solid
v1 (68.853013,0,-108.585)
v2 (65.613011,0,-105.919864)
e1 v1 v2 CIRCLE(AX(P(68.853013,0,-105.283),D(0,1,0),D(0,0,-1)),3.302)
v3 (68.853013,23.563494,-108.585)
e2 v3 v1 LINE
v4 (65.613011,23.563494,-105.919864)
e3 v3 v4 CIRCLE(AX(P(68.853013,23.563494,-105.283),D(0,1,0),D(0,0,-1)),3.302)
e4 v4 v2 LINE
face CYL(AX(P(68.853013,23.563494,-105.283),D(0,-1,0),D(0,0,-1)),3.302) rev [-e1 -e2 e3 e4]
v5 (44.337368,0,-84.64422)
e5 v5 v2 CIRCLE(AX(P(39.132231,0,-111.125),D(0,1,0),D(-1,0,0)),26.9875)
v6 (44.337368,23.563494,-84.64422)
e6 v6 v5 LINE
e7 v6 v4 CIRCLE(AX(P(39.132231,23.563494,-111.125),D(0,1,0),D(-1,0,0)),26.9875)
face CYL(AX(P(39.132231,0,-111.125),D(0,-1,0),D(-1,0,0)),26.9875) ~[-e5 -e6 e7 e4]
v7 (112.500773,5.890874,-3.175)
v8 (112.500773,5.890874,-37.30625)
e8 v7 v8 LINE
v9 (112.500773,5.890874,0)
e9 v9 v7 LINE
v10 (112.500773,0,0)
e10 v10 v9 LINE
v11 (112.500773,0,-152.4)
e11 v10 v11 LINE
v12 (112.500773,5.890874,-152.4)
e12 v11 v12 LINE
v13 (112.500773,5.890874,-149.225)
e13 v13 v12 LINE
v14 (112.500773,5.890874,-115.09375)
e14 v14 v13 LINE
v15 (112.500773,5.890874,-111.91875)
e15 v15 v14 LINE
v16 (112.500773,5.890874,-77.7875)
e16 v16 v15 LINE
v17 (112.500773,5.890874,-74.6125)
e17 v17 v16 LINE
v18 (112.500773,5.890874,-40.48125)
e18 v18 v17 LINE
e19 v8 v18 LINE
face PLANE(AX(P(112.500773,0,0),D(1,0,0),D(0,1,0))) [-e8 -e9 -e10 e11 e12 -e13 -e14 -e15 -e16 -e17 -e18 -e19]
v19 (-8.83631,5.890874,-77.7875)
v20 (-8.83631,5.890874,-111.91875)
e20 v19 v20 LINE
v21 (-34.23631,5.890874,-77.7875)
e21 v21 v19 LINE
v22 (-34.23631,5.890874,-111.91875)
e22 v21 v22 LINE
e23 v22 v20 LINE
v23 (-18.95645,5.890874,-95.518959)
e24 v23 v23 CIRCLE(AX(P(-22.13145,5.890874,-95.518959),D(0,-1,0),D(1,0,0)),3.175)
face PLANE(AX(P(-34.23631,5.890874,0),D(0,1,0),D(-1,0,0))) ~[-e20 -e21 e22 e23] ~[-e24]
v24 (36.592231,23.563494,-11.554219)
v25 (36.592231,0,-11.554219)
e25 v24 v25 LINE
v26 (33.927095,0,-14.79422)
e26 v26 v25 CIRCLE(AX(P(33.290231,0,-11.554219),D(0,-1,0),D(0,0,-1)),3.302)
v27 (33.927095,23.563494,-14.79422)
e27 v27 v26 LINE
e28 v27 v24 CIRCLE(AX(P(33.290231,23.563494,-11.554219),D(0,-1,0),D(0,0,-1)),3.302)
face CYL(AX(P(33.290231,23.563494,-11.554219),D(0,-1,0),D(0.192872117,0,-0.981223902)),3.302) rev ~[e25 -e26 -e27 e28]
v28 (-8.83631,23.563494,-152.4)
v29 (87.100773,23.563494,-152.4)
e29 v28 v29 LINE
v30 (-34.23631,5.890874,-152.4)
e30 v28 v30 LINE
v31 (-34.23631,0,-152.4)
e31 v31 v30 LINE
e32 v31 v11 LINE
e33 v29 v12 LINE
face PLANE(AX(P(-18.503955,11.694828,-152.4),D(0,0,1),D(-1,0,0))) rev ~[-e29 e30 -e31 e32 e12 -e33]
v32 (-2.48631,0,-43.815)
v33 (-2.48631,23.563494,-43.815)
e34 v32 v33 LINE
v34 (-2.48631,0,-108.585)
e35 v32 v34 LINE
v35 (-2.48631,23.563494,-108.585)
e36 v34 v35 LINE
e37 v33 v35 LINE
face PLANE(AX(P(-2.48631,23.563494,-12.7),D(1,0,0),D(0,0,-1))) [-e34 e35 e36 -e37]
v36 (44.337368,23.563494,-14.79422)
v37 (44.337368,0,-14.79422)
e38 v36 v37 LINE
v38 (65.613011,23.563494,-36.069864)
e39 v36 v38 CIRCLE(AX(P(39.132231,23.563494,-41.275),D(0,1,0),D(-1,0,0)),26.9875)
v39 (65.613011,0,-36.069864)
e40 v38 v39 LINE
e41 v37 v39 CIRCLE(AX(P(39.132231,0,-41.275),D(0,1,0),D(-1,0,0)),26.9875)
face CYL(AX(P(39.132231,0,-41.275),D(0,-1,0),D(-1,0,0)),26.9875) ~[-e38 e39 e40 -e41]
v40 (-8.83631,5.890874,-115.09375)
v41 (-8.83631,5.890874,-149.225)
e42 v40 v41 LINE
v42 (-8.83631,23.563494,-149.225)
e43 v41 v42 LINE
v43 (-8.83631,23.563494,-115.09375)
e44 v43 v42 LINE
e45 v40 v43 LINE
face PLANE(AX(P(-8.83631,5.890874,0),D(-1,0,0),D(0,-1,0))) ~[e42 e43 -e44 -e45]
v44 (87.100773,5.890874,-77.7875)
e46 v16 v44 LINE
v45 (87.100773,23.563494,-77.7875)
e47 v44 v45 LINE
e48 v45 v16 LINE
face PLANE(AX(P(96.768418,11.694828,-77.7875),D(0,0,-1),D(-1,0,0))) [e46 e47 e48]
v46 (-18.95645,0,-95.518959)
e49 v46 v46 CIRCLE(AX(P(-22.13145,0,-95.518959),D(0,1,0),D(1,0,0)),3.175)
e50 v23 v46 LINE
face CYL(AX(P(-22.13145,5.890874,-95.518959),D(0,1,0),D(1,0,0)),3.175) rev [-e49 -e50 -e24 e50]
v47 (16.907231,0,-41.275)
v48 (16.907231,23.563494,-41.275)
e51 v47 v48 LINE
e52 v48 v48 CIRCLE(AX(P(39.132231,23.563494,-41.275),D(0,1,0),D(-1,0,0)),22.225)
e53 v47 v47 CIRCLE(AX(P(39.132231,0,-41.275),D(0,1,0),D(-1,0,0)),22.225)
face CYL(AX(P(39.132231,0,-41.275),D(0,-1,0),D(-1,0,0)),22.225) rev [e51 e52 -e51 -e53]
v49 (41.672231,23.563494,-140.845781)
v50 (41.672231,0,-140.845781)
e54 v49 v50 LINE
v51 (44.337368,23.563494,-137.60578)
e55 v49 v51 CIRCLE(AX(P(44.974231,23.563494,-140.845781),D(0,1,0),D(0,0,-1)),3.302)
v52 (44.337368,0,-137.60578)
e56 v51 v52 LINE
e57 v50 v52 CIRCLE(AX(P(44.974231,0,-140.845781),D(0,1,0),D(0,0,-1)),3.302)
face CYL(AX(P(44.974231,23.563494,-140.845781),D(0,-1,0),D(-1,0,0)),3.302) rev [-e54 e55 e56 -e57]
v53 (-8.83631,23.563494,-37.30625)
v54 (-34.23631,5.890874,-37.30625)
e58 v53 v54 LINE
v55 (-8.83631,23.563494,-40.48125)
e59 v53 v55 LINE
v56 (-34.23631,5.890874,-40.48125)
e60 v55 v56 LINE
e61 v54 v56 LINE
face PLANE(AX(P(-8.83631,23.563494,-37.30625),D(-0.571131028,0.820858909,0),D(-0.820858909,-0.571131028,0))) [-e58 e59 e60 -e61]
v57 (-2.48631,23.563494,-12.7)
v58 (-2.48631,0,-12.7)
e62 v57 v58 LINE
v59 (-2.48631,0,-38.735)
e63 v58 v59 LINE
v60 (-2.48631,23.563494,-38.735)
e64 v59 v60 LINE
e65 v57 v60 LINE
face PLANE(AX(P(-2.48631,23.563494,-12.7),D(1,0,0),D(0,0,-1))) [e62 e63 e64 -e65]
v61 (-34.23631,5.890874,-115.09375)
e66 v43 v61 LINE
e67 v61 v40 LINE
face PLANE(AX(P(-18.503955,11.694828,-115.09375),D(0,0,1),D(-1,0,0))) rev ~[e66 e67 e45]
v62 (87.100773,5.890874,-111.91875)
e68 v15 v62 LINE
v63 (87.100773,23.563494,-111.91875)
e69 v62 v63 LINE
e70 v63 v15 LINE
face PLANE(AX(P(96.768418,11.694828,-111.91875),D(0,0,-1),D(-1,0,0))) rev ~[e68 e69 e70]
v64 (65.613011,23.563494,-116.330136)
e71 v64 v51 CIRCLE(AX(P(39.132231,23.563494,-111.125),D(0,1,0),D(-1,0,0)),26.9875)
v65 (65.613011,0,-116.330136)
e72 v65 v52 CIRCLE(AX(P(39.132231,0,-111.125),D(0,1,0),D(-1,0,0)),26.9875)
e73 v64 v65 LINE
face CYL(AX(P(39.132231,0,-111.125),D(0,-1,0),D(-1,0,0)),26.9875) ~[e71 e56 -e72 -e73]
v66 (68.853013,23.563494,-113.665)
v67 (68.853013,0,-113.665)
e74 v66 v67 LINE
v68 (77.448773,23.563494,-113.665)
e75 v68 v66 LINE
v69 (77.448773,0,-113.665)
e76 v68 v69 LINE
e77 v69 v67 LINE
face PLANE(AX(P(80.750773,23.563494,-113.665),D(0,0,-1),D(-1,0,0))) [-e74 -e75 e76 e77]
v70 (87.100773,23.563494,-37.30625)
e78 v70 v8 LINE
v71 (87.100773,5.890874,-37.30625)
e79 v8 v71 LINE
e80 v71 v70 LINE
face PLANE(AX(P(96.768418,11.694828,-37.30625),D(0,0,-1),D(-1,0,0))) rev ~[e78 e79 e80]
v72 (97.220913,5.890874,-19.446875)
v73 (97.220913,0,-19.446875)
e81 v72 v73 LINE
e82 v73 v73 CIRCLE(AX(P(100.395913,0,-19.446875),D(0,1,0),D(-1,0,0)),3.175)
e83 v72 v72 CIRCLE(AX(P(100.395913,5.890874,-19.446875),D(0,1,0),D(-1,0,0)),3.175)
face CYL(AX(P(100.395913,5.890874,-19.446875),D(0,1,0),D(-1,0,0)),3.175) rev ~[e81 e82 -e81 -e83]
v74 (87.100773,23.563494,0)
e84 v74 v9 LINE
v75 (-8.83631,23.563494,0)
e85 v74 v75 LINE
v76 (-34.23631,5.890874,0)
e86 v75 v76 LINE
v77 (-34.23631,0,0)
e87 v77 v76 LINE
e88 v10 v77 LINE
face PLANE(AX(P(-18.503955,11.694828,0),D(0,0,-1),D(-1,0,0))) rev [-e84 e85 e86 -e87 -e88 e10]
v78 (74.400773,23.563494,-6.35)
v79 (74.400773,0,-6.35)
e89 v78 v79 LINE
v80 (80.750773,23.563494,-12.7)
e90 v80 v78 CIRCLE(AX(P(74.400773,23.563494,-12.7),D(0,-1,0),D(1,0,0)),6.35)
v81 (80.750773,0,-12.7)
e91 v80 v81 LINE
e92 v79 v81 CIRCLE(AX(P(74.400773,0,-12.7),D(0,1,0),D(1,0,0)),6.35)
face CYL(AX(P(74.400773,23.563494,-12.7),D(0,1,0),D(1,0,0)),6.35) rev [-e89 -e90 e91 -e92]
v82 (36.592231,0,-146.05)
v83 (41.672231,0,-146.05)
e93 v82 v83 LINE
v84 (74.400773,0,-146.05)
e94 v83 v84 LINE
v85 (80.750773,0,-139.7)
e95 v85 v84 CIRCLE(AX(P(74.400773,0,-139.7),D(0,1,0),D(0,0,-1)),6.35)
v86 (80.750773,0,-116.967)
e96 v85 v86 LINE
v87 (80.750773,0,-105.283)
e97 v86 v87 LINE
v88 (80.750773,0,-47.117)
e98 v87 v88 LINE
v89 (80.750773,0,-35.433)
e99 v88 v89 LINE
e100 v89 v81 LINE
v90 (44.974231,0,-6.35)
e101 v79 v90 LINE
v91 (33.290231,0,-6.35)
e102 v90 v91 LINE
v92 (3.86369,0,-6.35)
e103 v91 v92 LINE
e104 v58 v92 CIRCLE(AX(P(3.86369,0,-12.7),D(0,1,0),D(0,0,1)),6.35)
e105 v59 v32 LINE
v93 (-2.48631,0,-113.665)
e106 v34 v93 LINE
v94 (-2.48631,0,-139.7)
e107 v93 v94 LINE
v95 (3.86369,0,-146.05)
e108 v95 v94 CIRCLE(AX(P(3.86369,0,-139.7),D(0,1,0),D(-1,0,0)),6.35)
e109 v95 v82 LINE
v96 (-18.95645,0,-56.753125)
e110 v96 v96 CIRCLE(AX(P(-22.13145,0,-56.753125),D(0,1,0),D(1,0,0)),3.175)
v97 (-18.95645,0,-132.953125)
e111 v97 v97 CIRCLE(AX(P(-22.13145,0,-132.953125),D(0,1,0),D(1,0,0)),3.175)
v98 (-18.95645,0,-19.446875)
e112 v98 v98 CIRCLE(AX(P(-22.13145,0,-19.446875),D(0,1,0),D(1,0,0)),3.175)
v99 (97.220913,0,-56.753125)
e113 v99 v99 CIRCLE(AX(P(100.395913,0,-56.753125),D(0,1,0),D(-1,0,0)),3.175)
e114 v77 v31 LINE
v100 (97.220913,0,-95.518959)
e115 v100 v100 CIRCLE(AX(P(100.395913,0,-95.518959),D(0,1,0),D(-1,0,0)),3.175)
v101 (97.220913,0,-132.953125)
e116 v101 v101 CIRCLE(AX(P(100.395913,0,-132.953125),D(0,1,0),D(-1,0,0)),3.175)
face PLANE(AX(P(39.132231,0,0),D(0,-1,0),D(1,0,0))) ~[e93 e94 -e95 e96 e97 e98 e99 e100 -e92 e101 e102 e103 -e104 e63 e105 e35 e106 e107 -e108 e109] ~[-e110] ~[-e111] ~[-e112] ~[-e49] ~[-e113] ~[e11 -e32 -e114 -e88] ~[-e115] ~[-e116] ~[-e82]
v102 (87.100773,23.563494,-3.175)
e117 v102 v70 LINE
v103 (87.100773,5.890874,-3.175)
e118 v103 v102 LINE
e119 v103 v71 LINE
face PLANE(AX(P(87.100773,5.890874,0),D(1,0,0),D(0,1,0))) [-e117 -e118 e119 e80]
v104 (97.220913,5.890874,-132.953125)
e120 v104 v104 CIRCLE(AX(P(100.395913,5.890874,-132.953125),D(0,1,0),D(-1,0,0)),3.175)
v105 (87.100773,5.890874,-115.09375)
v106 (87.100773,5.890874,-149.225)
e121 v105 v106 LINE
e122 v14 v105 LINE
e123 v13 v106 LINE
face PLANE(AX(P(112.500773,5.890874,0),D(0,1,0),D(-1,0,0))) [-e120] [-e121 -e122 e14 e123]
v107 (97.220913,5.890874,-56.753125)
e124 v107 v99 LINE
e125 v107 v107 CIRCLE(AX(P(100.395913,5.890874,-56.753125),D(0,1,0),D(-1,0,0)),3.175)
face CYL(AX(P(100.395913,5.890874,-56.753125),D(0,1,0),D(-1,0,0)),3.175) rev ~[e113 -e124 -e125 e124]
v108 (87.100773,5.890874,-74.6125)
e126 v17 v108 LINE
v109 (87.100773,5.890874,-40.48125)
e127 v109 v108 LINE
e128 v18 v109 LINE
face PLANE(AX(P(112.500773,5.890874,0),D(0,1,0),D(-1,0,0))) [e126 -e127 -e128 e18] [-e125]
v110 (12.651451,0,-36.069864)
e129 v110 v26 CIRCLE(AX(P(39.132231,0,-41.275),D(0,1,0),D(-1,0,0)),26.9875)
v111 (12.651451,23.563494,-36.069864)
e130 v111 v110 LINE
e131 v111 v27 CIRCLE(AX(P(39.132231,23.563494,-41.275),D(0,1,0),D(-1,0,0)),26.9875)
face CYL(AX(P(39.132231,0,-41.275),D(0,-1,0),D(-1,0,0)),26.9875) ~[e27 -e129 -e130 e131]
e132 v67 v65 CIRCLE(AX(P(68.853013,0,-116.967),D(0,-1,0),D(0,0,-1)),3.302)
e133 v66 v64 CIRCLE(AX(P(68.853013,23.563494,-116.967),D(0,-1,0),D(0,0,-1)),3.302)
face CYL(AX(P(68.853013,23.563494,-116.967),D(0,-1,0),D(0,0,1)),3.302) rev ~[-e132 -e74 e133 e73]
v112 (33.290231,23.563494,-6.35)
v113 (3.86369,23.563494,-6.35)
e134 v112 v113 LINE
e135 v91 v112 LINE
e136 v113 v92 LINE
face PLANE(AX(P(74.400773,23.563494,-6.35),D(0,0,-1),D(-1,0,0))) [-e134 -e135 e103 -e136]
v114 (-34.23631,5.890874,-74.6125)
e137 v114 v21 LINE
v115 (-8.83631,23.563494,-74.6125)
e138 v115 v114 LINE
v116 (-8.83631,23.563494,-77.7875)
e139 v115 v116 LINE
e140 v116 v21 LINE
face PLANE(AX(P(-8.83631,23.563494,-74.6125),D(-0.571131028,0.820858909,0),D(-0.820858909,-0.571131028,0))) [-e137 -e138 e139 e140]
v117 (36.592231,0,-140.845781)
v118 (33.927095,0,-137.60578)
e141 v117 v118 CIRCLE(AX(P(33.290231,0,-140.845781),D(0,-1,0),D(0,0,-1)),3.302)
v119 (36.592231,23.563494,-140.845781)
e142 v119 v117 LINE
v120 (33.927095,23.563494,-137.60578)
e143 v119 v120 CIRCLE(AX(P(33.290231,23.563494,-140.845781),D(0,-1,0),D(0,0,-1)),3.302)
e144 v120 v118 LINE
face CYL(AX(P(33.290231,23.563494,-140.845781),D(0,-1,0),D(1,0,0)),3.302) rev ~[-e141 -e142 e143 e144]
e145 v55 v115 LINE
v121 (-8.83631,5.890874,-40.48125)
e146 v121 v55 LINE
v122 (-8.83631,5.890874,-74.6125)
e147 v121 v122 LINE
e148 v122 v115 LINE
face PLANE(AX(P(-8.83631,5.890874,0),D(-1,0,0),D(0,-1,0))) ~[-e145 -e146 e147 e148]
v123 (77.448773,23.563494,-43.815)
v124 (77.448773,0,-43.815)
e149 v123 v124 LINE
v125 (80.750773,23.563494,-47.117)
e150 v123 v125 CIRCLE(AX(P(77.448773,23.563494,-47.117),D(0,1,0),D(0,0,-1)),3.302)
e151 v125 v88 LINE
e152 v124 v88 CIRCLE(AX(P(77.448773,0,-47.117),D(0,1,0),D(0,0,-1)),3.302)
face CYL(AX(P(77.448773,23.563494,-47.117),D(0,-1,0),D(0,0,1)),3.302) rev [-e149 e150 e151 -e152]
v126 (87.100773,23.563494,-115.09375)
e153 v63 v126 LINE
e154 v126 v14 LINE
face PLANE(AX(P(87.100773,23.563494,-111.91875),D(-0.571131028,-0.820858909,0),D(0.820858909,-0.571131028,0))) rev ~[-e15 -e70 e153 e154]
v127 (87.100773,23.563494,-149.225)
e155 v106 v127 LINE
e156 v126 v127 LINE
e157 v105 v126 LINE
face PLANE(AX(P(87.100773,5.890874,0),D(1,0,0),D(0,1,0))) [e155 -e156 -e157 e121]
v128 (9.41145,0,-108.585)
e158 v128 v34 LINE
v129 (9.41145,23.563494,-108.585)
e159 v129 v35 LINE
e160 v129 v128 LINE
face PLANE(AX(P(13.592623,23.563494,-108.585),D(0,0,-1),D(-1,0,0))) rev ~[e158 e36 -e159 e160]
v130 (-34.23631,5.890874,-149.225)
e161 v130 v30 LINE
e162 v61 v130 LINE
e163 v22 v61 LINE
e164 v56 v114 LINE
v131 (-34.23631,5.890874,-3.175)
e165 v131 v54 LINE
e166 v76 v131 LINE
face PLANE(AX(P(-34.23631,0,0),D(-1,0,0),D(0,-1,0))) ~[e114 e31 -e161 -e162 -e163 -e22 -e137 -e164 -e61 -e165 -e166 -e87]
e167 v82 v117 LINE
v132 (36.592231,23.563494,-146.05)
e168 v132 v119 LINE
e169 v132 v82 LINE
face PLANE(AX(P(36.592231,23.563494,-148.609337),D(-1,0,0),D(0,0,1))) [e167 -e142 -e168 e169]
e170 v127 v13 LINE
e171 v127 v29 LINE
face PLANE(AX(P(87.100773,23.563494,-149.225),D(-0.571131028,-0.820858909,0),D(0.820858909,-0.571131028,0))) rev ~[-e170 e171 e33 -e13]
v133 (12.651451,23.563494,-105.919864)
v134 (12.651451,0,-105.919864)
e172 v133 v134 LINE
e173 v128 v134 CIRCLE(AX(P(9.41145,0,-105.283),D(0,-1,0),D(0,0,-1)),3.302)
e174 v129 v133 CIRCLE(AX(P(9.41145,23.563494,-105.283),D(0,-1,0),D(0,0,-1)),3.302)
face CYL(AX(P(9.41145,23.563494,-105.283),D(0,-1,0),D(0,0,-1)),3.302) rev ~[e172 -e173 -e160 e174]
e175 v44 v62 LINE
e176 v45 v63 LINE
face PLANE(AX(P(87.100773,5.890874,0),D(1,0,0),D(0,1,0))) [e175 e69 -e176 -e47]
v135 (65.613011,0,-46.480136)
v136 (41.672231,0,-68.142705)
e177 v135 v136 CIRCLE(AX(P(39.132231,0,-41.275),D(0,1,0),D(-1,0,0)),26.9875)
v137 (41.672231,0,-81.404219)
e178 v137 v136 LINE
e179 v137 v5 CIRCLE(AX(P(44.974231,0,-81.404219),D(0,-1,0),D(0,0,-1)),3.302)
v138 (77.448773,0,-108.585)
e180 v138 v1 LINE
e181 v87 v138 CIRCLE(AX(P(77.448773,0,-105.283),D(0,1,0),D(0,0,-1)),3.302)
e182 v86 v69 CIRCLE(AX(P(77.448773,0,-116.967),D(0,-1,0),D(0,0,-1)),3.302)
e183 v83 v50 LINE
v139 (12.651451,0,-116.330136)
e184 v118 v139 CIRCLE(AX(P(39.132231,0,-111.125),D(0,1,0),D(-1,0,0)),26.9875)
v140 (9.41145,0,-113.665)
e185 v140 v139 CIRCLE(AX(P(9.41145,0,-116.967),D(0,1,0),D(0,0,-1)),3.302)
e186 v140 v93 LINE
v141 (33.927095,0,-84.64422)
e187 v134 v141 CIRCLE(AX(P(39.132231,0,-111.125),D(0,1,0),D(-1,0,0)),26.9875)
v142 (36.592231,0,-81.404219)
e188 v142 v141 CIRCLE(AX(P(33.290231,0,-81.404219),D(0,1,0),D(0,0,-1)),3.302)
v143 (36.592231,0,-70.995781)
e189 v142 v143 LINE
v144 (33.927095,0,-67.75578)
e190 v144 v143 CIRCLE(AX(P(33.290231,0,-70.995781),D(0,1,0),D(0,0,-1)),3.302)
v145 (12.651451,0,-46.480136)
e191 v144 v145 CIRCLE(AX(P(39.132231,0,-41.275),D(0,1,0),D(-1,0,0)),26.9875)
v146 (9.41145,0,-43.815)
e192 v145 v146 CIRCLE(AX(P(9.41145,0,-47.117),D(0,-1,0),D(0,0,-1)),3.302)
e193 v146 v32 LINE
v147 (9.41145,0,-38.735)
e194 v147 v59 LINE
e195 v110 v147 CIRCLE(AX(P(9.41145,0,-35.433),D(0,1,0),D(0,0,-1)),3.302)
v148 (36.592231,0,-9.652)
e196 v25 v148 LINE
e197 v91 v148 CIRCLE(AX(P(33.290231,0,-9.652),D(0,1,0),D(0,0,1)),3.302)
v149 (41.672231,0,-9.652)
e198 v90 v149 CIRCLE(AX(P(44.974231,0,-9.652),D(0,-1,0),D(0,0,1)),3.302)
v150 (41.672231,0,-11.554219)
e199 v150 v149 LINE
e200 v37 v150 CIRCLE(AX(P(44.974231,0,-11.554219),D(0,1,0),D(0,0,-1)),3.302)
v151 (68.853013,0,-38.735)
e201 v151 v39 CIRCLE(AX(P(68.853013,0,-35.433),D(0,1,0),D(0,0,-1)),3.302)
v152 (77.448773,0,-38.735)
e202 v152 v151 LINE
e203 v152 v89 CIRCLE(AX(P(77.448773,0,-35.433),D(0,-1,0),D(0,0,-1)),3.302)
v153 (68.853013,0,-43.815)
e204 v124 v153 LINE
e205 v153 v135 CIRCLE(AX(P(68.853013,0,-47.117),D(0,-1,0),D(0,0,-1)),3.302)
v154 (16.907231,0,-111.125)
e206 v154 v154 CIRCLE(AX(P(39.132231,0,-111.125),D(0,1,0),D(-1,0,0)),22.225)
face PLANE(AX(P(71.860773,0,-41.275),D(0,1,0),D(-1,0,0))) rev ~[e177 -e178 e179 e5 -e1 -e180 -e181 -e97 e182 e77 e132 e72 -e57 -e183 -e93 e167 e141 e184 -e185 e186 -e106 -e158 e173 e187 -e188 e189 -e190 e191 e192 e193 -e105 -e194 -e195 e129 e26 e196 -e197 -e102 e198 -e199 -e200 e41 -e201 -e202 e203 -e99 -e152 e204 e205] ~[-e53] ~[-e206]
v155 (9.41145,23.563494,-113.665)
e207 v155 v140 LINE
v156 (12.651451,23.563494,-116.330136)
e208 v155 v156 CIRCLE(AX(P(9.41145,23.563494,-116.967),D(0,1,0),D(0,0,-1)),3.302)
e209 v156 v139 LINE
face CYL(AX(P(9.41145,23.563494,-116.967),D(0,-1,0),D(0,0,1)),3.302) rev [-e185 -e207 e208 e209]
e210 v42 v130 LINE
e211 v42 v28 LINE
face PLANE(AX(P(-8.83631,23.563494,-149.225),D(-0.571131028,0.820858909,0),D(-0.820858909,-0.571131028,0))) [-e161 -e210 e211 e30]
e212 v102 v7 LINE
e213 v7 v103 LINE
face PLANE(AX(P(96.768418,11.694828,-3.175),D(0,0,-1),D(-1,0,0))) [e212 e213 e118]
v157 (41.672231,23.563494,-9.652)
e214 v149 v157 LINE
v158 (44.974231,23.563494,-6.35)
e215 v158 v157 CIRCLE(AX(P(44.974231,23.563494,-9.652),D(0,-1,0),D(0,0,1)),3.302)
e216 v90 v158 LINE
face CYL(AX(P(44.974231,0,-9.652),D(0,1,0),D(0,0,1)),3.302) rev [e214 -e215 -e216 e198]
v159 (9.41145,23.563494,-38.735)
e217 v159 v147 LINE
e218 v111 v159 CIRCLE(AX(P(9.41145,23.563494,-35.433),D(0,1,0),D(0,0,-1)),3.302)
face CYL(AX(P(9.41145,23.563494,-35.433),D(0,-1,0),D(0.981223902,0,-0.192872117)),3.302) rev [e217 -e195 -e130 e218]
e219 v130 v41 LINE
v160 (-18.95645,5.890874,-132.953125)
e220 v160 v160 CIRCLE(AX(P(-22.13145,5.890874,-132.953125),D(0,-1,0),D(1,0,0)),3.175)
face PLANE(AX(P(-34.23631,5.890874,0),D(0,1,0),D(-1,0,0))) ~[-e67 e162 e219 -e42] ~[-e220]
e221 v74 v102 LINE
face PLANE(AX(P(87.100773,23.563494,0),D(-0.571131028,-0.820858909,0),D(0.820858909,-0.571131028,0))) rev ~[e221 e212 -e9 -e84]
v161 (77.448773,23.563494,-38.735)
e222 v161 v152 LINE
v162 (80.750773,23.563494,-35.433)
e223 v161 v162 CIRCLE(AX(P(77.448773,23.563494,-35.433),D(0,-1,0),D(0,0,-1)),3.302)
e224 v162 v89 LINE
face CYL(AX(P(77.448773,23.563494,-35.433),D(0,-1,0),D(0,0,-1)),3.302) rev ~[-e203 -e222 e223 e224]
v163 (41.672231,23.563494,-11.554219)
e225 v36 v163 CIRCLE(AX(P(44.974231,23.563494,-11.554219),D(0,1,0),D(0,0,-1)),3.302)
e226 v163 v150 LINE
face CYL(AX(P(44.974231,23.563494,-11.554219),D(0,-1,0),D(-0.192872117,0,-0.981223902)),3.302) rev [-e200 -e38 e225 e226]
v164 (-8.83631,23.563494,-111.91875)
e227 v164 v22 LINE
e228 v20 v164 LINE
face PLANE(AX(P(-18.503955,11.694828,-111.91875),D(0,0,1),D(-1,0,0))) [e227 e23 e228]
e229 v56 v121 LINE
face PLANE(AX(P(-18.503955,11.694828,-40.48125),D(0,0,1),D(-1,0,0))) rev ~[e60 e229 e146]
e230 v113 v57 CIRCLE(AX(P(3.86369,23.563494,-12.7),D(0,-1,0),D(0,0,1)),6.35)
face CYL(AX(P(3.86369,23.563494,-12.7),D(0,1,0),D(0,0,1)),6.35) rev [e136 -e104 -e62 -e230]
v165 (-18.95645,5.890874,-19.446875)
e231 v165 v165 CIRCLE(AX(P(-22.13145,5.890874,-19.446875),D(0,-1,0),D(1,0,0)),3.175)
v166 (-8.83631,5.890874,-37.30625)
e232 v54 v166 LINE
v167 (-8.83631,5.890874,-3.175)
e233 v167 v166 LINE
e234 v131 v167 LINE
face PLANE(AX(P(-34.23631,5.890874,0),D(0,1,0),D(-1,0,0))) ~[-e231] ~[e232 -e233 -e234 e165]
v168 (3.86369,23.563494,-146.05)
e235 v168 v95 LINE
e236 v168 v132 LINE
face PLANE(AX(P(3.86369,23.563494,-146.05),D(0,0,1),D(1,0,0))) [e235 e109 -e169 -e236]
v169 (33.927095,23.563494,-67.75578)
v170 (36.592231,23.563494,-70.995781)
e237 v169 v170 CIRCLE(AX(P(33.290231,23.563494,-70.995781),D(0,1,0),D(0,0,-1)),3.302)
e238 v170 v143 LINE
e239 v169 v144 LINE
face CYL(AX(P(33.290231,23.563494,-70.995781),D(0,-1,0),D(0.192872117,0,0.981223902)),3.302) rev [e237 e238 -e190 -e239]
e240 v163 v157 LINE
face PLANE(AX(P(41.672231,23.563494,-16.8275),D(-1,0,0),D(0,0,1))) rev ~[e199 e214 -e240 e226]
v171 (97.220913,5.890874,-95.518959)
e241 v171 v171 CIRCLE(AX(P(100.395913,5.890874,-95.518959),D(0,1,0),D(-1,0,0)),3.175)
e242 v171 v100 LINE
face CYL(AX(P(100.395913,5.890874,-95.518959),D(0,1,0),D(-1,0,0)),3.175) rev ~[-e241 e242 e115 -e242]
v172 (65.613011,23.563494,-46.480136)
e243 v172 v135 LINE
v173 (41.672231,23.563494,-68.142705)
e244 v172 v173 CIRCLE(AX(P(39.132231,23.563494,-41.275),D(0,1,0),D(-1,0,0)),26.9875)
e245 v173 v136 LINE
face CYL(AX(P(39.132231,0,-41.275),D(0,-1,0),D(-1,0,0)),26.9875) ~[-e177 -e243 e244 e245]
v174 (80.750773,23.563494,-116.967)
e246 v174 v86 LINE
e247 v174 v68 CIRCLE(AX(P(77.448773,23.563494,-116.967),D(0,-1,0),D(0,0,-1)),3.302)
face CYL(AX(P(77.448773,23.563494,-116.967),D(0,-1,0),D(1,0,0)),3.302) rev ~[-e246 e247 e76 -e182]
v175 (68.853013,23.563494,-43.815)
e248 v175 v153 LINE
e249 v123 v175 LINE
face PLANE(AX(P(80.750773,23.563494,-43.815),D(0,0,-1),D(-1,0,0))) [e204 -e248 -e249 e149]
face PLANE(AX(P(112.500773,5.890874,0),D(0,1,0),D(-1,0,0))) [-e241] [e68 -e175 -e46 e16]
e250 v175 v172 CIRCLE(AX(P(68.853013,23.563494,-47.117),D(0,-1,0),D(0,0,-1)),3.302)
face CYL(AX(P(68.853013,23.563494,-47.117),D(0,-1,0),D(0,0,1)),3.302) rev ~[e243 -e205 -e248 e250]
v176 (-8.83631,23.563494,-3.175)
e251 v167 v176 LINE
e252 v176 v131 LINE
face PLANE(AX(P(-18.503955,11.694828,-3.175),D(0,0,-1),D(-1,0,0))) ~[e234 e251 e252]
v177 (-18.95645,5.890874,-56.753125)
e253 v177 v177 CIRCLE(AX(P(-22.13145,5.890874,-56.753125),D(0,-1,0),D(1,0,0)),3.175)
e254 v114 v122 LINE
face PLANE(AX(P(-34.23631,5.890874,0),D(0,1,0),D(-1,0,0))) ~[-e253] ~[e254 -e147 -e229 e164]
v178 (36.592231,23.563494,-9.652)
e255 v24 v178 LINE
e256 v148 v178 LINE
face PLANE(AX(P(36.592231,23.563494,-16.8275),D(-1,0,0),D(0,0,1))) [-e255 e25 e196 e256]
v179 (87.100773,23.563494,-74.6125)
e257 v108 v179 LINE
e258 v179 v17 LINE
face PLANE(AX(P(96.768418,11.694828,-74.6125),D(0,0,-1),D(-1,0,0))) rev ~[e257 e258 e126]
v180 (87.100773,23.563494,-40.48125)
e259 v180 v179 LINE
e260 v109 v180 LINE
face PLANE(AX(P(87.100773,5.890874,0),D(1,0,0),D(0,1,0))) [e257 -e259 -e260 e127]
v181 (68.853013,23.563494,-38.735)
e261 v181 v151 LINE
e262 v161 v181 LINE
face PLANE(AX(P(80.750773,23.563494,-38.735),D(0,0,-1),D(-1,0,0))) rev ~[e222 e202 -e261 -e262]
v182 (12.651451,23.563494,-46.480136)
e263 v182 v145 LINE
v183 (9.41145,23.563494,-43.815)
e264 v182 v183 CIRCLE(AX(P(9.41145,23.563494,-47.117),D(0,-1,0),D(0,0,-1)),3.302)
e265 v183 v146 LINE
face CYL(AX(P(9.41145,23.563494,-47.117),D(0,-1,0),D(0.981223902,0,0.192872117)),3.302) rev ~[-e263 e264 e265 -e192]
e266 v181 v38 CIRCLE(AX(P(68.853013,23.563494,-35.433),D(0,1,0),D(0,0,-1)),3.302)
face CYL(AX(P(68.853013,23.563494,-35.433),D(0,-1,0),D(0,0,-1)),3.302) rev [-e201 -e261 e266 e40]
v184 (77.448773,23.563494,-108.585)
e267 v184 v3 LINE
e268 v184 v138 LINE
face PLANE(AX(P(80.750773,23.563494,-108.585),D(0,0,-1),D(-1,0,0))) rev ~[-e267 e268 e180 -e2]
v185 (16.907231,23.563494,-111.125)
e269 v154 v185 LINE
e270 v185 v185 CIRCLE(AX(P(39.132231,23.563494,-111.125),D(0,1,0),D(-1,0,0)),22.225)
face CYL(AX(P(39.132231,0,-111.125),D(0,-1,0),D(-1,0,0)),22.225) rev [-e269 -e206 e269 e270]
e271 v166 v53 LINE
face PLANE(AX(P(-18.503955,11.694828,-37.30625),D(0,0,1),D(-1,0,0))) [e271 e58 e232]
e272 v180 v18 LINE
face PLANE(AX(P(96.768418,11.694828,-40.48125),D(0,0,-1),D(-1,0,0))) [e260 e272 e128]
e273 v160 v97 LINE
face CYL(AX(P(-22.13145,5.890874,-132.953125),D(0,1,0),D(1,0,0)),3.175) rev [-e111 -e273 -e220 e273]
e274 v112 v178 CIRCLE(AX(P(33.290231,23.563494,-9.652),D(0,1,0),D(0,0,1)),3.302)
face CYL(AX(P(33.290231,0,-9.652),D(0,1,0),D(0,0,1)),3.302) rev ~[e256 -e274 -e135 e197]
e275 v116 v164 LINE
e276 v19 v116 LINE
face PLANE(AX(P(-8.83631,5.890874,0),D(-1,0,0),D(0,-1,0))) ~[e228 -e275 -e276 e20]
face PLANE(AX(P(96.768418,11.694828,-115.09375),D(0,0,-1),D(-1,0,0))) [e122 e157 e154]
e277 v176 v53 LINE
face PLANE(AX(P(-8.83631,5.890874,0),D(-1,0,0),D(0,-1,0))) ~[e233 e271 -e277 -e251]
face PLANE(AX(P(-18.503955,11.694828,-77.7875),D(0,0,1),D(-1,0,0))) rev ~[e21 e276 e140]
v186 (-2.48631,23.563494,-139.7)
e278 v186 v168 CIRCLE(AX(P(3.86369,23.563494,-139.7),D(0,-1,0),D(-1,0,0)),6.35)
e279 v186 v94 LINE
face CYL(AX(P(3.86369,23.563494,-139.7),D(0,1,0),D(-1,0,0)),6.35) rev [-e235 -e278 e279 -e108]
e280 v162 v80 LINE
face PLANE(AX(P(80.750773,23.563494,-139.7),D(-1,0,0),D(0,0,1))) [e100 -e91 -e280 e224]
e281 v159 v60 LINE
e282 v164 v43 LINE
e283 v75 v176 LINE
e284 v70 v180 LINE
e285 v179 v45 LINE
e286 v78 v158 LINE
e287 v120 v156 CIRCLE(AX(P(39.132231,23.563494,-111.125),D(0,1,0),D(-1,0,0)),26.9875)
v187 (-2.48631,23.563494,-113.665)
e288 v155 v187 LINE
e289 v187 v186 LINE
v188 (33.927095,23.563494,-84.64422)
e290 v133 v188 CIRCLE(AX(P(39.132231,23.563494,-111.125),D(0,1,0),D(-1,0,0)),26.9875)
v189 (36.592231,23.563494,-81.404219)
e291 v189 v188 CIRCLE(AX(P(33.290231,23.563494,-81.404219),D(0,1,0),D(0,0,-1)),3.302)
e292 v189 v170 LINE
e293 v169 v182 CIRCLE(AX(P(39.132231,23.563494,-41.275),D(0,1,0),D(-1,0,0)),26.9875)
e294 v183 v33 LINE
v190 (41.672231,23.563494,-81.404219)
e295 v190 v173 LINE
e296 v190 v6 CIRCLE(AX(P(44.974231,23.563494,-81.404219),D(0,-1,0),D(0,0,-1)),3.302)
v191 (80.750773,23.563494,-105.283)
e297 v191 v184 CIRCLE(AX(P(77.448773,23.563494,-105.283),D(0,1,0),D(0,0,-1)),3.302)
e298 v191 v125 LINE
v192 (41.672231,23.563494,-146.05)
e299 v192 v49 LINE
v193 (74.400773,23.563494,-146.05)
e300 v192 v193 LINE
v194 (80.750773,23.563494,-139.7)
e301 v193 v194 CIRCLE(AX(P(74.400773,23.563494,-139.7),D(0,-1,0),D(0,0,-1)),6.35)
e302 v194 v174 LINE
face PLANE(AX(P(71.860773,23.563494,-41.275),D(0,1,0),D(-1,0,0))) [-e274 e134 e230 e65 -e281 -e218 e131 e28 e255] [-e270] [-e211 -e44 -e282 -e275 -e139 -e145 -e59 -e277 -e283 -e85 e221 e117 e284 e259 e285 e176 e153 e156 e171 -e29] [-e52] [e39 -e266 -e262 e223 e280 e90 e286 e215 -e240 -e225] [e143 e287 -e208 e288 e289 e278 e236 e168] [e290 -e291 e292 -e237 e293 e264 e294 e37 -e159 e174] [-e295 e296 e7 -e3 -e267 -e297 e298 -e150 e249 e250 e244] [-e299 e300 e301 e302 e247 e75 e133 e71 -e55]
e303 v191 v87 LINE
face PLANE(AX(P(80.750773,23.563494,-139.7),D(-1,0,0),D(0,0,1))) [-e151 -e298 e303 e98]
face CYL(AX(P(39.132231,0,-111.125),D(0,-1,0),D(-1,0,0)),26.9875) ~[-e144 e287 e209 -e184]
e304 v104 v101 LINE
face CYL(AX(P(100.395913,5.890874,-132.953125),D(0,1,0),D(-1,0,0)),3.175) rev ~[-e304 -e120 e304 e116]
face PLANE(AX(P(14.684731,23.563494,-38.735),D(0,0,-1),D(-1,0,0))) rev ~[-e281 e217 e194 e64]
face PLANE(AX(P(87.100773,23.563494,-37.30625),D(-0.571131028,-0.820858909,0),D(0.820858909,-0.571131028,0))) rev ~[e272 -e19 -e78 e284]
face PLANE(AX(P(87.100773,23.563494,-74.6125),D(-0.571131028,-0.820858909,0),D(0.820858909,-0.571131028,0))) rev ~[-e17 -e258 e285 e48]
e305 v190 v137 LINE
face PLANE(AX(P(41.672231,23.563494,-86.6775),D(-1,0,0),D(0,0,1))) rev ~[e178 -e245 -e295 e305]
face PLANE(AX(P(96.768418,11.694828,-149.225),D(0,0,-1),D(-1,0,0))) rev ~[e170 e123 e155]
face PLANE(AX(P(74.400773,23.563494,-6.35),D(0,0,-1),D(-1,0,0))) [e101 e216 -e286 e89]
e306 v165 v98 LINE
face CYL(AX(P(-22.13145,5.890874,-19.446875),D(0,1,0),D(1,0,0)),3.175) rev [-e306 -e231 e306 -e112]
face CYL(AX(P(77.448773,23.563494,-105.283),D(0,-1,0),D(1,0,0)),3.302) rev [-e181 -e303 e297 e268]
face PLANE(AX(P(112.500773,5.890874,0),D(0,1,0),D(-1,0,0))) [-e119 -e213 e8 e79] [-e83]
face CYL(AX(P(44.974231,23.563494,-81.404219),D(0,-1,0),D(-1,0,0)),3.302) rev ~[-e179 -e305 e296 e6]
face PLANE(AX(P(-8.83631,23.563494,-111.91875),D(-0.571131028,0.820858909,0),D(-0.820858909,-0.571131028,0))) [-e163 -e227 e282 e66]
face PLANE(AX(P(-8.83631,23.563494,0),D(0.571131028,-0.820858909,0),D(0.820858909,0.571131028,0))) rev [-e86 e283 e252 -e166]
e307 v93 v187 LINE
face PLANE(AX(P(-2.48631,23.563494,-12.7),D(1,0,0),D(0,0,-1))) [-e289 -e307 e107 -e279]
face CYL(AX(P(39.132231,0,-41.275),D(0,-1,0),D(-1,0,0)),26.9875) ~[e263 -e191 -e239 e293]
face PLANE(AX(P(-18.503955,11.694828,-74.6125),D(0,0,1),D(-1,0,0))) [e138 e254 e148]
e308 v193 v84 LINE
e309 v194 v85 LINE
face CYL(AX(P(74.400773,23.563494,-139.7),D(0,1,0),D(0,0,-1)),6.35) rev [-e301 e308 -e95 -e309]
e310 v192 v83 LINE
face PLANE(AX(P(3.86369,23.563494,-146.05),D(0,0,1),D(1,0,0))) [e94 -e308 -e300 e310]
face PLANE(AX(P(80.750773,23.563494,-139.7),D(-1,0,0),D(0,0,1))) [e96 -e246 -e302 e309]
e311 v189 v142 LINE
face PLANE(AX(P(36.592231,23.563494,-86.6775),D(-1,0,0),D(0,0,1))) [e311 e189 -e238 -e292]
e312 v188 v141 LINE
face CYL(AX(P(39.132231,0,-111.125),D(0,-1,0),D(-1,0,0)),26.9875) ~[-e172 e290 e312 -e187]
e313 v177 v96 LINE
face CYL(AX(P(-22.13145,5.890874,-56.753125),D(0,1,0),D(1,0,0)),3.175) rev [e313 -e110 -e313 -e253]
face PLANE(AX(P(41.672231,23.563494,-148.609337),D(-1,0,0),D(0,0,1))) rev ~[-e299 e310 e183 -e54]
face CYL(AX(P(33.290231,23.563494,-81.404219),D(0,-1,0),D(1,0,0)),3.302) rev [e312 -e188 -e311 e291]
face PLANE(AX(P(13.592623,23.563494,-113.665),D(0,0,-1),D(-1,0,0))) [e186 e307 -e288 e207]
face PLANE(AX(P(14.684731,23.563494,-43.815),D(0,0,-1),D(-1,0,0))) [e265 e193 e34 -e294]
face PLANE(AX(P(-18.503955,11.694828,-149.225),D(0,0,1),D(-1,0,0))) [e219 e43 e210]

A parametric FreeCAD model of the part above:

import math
import FreeCAD as App
import Part
import Sketcher
from FreeCAD import Vector
Q = App.Units.Quantity


def edges_at(feature, points):
    """Names of the edges that pass closest to the given points."""
    edges = feature.Shape.Edges
    near = lambda p: min(range(len(edges)), key=lambda i: edges[i].distToShape(Part.Vertex(*p))[0])
    return sorted({f"Edge{near(p) + 1}" for p in points})


def add_polygon(sketch, points):
    """Adds a closed chain of lines whose ends are joined by coincident constraints."""
    first, n = sketch.GeometryCount, len(points)
    for a, b in zip(points, points[1:] + points[:1]):
        sketch.addGeometry(Part.LineSegment(App.Vector(*a, 0), App.Vector(*b, 0)), False)
    for i in range(n):
        sketch.addConstraint(Sketcher.Constraint("Coincident", first + i, 2, first + (i + 1) % n, 1))

doc = App.newDocument("Part")
body = doc.addObject("PartDesign::Body", "Body")

sketch1 = doc.addObject("Sketcher::SketchObject", "Sketch")
body.addObject(sketch1)
sketch1.AttachmentSupport = (doc.XY_Plane, [""])
sketch1.MapMode = "FlatFace"
add_polygon(sketch1, [(39, 0), (113, 0), (113, 6), (87, 6), (87, 24), (39, 24)])
sketch1.addConstraint(Sketcher.Constraint("Horizontal", 0))
sketch1.addConstraint(Sketcher.Constraint("Vertical", 1))
sketch1.addConstraint(Sketcher.Constraint("Horizontal", 2))
sketch1.addConstraint(Sketcher.Constraint("Vertical", 3))
sketch1.addConstraint(Sketcher.Constraint("Horizontal", 4))
sketch1.addConstraint(Sketcher.Constraint("Vertical", 5))
sketch1.addConstraint(Sketcher.Constraint("PointOnObject", 0, 2, -1))
sketch1.addConstraint(Sketcher.Constraint("DistanceX", 2, 2, 2, 1, Q("1 in")))
sketch1.addConstraint(Sketcher.Constraint("DistanceX", 0, 1, 0, 2, Q("73.368542 mm")))
sketch1.addConstraint(Sketcher.Constraint("DistanceY", 3, 1, 3, 2, Q("17.672621 mm")))
sketch1.addConstraint(Sketcher.Constraint("DistanceY", 1, 1, 1, 2, Q("5.890874 mm")))
sketch1.addConstraint(Sketcher.Constraint("DistanceX", -1, 1, 4, 2, Q("39.132231 mm")))
pad1 = doc.addObject("PartDesign::Pad", "Pad")
body.addObject(pad1)
pad1.Profile = sketch1
pad1.Length = Q("6 in")
pad1.Reversed = True
doc.recompute()

datumplane = doc.addObject("PartDesign::Plane", "DatumPlane")
body.addObject(datumplane)
datumplane.AttachmentSupport = (doc.YZ_Plane, [""])
datumplane.MapMode = "FlatFace"
datumplane.AttachmentOffset = App.Placement(Vector(0, 0, 39.132231), App.Rotation())
mirrored = doc.addObject("PartDesign::Mirrored", "Mirrored")
body.addObject(mirrored)
mirrored.Originals = [pad1]
mirrored.MirrorPlane = (datumplane, [""])
body.Tip = mirrored

sketch2 = doc.addObject("Sketcher::SketchObject", "Sketch001")
body.addObject(sketch2)
sketch2.AttachmentSupport = (doc.XY_Plane, [""])
sketch2.MapMode = "FlatFace"
add_polygon(sketch2, [(113, 6), (87, 24), (87, 6)])
sketch2.addConstraint(Sketcher.Constraint("Vertical", 1))
sketch2.addConstraint(Sketcher.Constraint("Horizontal", 2))
sketch2.addConstraint(Sketcher.Constraint("DistanceX", 2, 1, 2, 2, Q("1 in")))
sketch2.addConstraint(Sketcher.Constraint("Distance", 0, Q("30.943198 mm")))
sketch2.addConstraint(Sketcher.Constraint("DistanceX", -1, 1, 0, 2, Q("87.100773 mm")))
sketch2.addConstraint(Sketcher.Constraint("DistanceY", -1, 1, 0, 2, Q("23.563494 mm")))
pad2 = doc.addObject("PartDesign::Pad", "Pad001")
body.addObject(pad2)
pad2.Profile = sketch2
pad2.Length = Q("0.125 in")
pad2.Reversed = True

sketch3 = doc.addObject("Sketcher::SketchObject", "Sketch002")
body.addObject(sketch3)
sketch3.AttachmentSupport = (doc.XZ_Plane, [""])
sketch3.MapMode = "FlatFace"
sketch3.AttachmentOffset = App.Placement(Vector(0, 0, -5.890874), App.Rotation())
sketch3.addGeometry(Part.Circle(Vector(100.4, -19.4, 0), Vector(0, 0, 1), 3.2), False)
sketch3.addGeometry(Part.Circle(Vector(100.4, -56.8, 0), Vector(0, 0, 1), 3.2), False)
sketch3.addGeometry(Part.Circle(Vector(100.4, -95.5, 0), Vector(0, 0, 1), 3.2), False)
sketch3.addGeometry(Part.Circle(Vector(100.4, -133, 0), Vector(0, 0, 1), 3.2), False)
sketch3.addConstraint(Sketcher.Constraint("Equal", 0, 1))
sketch3.addConstraint(Sketcher.Constraint("Equal", 1, 2))
sketch3.addConstraint(Sketcher.Constraint("Equal", 2, 3))
sketch3.addConstraint(Sketcher.Constraint("Vertical", 0, 3, 1, 3))
sketch3.addConstraint(Sketcher.Constraint("Vertical", 1, 3, 2, 3))
sketch3.addConstraint(Sketcher.Constraint("Vertical", 2, 3, 3, 3))
sketch3.addConstraint(Sketcher.Constraint("Diameter", 0, Q("0.25 in")))
sketch3.addConstraint(Sketcher.Constraint("DistanceY", 3, 3, 1, 3, Q("3 in")))
sketch3.addConstraint(Sketcher.Constraint("DistanceY", 0, 3, -1, 1, Q("0.765625 in")))
sketch3.addConstraint(Sketcher.Constraint("DistanceY", 1, 3, -1, 1, Q("2.234375 in")))
sketch3.addConstraint(Sketcher.Constraint("DistanceY", 2, 3, -1, 1, Q("95.518959 mm")))
sketch3.addConstraint(Sketcher.Constraint("DistanceX", -1, 1, 0, 3, Q("100.395913 mm")))
pocket1 = doc.addObject("PartDesign::Pocket", "Pocket")
body.addObject(pocket1)
pocket1.Profile = sketch3
pocket1.Type = "ThroughAll"
pocket1.Reversed = True
doc.recompute()

linearpattern = doc.addObject("PartDesign::LinearPattern", "LinearPattern")
body.addObject(linearpattern)
linearpattern.Originals = [pad2]
linearpattern.Direction = (doc.Z_Axis, [""])
linearpattern.Mode = "offset"
linearpattern.Offset = Q("1.46875 in")
linearpattern.Occurrences = 5
linearpattern.Reversed = True
body.Tip = linearpattern
doc.recompute()

datumplane2 = doc.addObject("PartDesign::Plane", "DatumPlane001")
body.addObject(datumplane2)
datumplane2.AttachmentSupport = (doc.YZ_Plane, [""])
datumplane2.MapMode = "FlatFace"
datumplane2.AttachmentOffset = App.Placement(Vector(0, 0, 39.132231), App.Rotation())
mirrored2 = doc.addObject("PartDesign::Mirrored", "Mirrored001")
body.addObject(mirrored2)
mirrored2.Originals = [pad2, pocket1]
mirrored2.MirrorPlane = (datumplane2, [""])
body.Tip = mirrored2

sketch4 = doc.addObject("Sketcher::SketchObject", "Sketch003")
body.addObject(sketch4)
sketch4.AttachmentSupport = (doc.XY_Plane, [""])
sketch4.MapMode = "FlatFace"
sketch4.AttachmentOffset = App.Placement(Vector(0, 0, -1.46875 * 25.4), App.Rotation())
add_polygon(sketch4, [(-9, 24), (-34, 6), (-9, 6)])
sketch4.addConstraint(Sketcher.Constraint("Horizontal", 1))
sketch4.addConstraint(Sketcher.Constraint("Vertical", 2))
sketch4.addConstraint(Sketcher.Constraint("DistanceX", 1, 1, 1, 2, Q("1 in")))
sketch4.addConstraint(Sketcher.Constraint("Distance", 0, Q("30.943198 mm")))
sketch4.addConstraint(Sketcher.Constraint("DistanceX", 0, 2, -1, 1, Q("34.23631 mm")))
sketch4.addConstraint(Sketcher.Constraint("DistanceY", -1, 1, 0, 2, Q("5.890874 mm")))
pad3 = doc.addObject("PartDesign::Pad", "Pad002")
body.addObject(pad3)
pad3.Profile = sketch4
pad3.Length = Q("0.125 in")
pad3.Reversed = True

sketch5 = doc.addObject("Sketcher::SketchObject", "Sketch004")
body.addObject(sketch5)
sketch5.AttachmentSupport = (doc.XY_Plane, [""])
sketch5.MapMode = "FlatFace"
sketch5.AttachmentOffset = App.Placement(Vector(0, 0, -2.9375 * 25.4), App.Rotation())
add_polygon(sketch5, [(-9, 24), (-34, 6), (-9, 6)])
sketch5.addConstraint(Sketcher.Constraint("Horizontal", 1))
sketch5.addConstraint(Sketcher.Constraint("Vertical", 2))
sketch5.addConstraint(Sketcher.Constraint("DistanceX", 1, 1, 1, 2, Q("1 in")))
sketch5.addConstraint(Sketcher.Constraint("Distance", 0, Q("30.943198 mm")))
sketch5.addConstraint(Sketcher.Constraint("DistanceX", 0, 2, -1, 1, Q("34.23631 mm")))
sketch5.addConstraint(Sketcher.Constraint("DistanceY", -1, 1, 0, 2, Q("5.890874 mm")))
pad4 = doc.addObject("PartDesign::Pad", "Pad003")
body.addObject(pad4)
pad4.Profile = sketch5
pad4.Length = Q("0.125 in")
pad4.Reversed = True

sketch6 = doc.addObject("Sketcher::SketchObject", "Sketch005")
body.addObject(sketch6)
sketch6.AttachmentSupport = (doc.XY_Plane, [""])
sketch6.MapMode = "FlatFace"
sketch6.AttachmentOffset = App.Placement(Vector(0, 0, -4.40625 * 25.4), App.Rotation())
add_polygon(sketch6, [(-9, 24), (-34, 6), (-9, 6)])
sketch6.addConstraint(Sketcher.Constraint("Horizontal", 1))
sketch6.addConstraint(Sketcher.Constraint("Vertical", 2))
sketch6.addConstraint(Sketcher.Constraint("DistanceX", 1, 1, 1, 2, Q("1 in")))
sketch6.addConstraint(Sketcher.Constraint("Distance", 0, Q("30.943198 mm")))
sketch6.addConstraint(Sketcher.Constraint("DistanceX", 0, 2, -1, 1, Q("34.23631 mm")))
sketch6.addConstraint(Sketcher.Constraint("DistanceY", -1, 1, 0, 2, Q("5.890874 mm")))
pad5 = doc.addObject("PartDesign::Pad", "Pad004")
body.addObject(pad5)
pad5.Profile = sketch6
pad5.Length = Q("0.125 in")
pad5.Reversed = True

sketch7 = doc.addObject("Sketcher::SketchObject", "Sketch006")
body.addObject(sketch7)
sketch7.AttachmentSupport = (doc.XY_Plane, [""])
sketch7.MapMode = "FlatFace"
sketch7.AttachmentOffset = App.Placement(Vector(0, 0, -5.875 * 25.4), App.Rotation())
add_polygon(sketch7, [(-9, 24), (-34, 6), (-9, 6)])
sketch7.addConstraint(Sketcher.Constraint("Horizontal", 1))
sketch7.addConstraint(Sketcher.Constraint("Vertical", 2))
sketch7.addConstraint(Sketcher.Constraint("DistanceX", 1, 1, 1, 2, Q("1 in")))
sketch7.addConstraint(Sketcher.Constraint("Distance", 0, Q("30.943198 mm")))
sketch7.addConstraint(Sketcher.Constraint("DistanceX", 0, 2, -1, 1, Q("34.23631 mm")))
sketch7.addConstraint(Sketcher.Constraint("DistanceY", -1, 1, 0, 2, Q("5.890874 mm")))
pad6 = doc.addObject("PartDesign::Pad", "Pad005")
body.addObject(pad6)
pad6.Profile = sketch7
pad6.Length = Q("0.125 in")
pad6.Reversed = True

sketch8 = doc.addObject("Sketcher::SketchObject", "Sketch007")
body.addObject(sketch8)
sketch8.AttachmentSupport = (doc.XZ_Plane, [""])
sketch8.MapMode = "FlatFace"
sketch8.AttachmentOffset = App.Placement(Vector(0, 0, -23.563494), App.Rotation())
sketch8.addGeometry(Part.LineSegment(Vector(81, -13, 0), Vector(81, -140, 0)), False)
sketch8.addGeometry(Part.ArcOfCircle(Part.Circle(Vector(74, -140, 0), Vector(0, 0, 1), 6), math.radians(-90), math.radians(0)), False)
sketch8.addGeometry(Part.LineSegment(Vector(74, -146, 0), Vector(4, -146, 0)), False)
sketch8.addGeometry(Part.ArcOfCircle(Part.Circle(Vector(4, -140, 0), Vector(0, 0, 1), 6), math.radians(180), math.radians(270)), False)
sketch8.addGeometry(Part.LineSegment(Vector(-2, -140, 0), Vector(-2, -13, 0)), False)
sketch8.addGeometry(Part.ArcOfCircle(Part.Circle(Vector(4, -13, 0), Vector(0, 0, 1), 6), math.radians(90), math.radians(180)), False)
sketch8.addGeometry(Part.LineSegment(Vector(4, -6, 0), Vector(74, -6, 0)), False)
sketch8.addGeometry(Part.ArcOfCircle(Part.Circle(Vector(74, -13, 0), Vector(0, 0, 1), 6), math.radians(0), math.radians(90)), False)
sketch8.addConstraint(Sketcher.Constraint("Tangent", 0, 2, 1, 2))
sketch8.addConstraint(Sketcher.Constraint("Tangent", 1, 1, 2, 1))
sketch8.addConstraint(Sketcher.Constraint("Tangent", 2, 2, 3, 2))
sketch8.addConstraint(Sketcher.Constraint("Tangent", 3, 1, 4, 1))
sketch8.addConstraint(Sketcher.Constraint("Tangent", 4, 2, 5, 2))
sketch8.addConstraint(Sketcher.Constraint("Tangent", 5, 1, 6, 1))
sketch8.addConstraint(Sketcher.Constraint("Tangent", 6, 2, 7, 2))
sketch8.addConstraint(Sketcher.Constraint("Tangent", 7, 1, 0, 1))
sketch8.addConstraint(Sketcher.Constraint("Vertical", 0))
sketch8.addConstraint(Sketcher.Constraint("Horizontal", 2))
sketch8.addConstraint(Sketcher.Constraint("Vertical", 4))
sketch8.addConstraint(Sketcher.Constraint("Horizontal", 6))
sketch8.addConstraint(Sketcher.Constraint("Equal", 1, 3))
sketch8.addConstraint(Sketcher.Constraint("Equal", 3, 5))
sketch8.addConstraint(Sketcher.Constraint("Equal", 5, 7))
sketch8.addConstraint(Sketcher.Constraint("DistanceY", 0, 2, 0, 1, Q("5 in")))
sketch8.addConstraint(Sketcher.Constraint("Radius", 1, Q("0.25 in")))
sketch8.addConstraint(Sketcher.Constraint("DistanceY", 1, 3, -1, 1, Q("5.5 in")))
sketch8.addConstraint(Sketcher.Constraint("DistanceX", 2, 2, 2, 1, Q("70.537083 mm")))
sketch8.addConstraint(Sketcher.Constraint("DistanceX", -1, 1, 3, 3, Q("3.86369 mm")))
pocket2 = doc.addObject("PartDesign::Pocket", "Pocket001")
body.addObject(pocket2)
pocket2.Profile = sketch8
pocket2.Length = Q("1 in")
pocket2.Reversed = True
body2 = doc.addObject("PartDesign::Body", "Body001")

sketch9 = doc.addObject("Sketcher::SketchObject", "Sketch008")
body2.addObject(sketch9)
sketch9.AttachmentSupport = (doc.getObject("XZ_Plane001"), [""])
sketch9.MapMode = "FlatFace"
sketch9.AttachmentOffset = App.Placement(Vector(0, 0, 0 * 25.4), App.Rotation())
sketch9.addGeometry(Part.Circle(Vector(39, -41, 0), Vector(0, 0, 1), 27), False)
sketch9.addGeometry(Part.Circle(Vector(39, -41, 0), Vector(0, 0, 1), 22), False)
sketch9.addConstraint(Sketcher.Constraint("Coincident", 1, 3, 0, 3))
sketch9.addConstraint(Sketcher.Constraint("Diameter", 1, Q("1.75 in")))
sketch9.addConstraint(Sketcher.Constraint("Diameter", 0, Q("2.125 in")))
sketch9.addConstraint(Sketcher.Constraint("DistanceY", 0, 3, -1, 1, Q("1.625 in")))
sketch9.addConstraint(Sketcher.Constraint("DistanceX", -1, 1, 0, 3, Q("39.132231 mm")))
pad7 = doc.addObject("PartDesign::Pad", "Pad006")
body2.addObject(pad7)
pad7.Profile = sketch9
pad7.Length = 23.563494
pad7.Reversed = True
body3 = doc.addObject("PartDesign::Body", "Body002")

sketch10 = doc.addObject("Sketcher::SketchObject", "Sketch009")
body3.addObject(sketch10)
sketch10.AttachmentSupport = (doc.getObject("XZ_Plane002"), [""])
sketch10.MapMode = "FlatFace"
sketch10.AttachmentOffset = App.Placement(Vector(0, 0, 0 * 25.4), App.Rotation())
sketch10.addGeometry(Part.Circle(Vector(39, -111, 0), Vector(0, 0, 1), 27), False)
sketch10.addGeometry(Part.Circle(Vector(39, -111, 0), Vector(0, 0, 1), 22), False)
sketch10.addConstraint(Sketcher.Constraint("Coincident", 1, 3, 0, 3))
sketch10.addConstraint(Sketcher.Constraint("Diameter", 1, Q("1.75 in")))
sketch10.addConstraint(Sketcher.Constraint("Diameter", 0, Q("2.125 in")))
sketch10.addConstraint(Sketcher.Constraint("DistanceY", 0, 3, -1, 1, Q("4.375 in")))
sketch10.addConstraint(Sketcher.Constraint("DistanceX", -1, 1, 0, 3, Q("39.132231 mm")))
pad8 = doc.addObject("PartDesign::Pad", "Pad007")
body3.addObject(pad8)
pad8.Profile = sketch10
pad8.Length = 23.563494
pad8.Reversed = True
body.AllowCompound = True
doc.recompute()

boolean = doc.addObject("PartDesign::Boolean", "Boolean")
body.addObject(boolean)
boolean.Type = "Fuse"
boolean.addObjects([body2])
doc.recompute()

boolean2 = doc.addObject("PartDesign::Boolean", "Boolean001")
body.addObject(boolean2)
boolean2.Type = "Fuse"
boolean2.addObjects([body3])

sketch11 = doc.addObject("Sketcher::SketchObject", "Sketch010")
body.addObject(sketch11)
sketch11.AttachmentSupport = (doc.XZ_Plane, [""])
sketch11.MapMode = "FlatFace"
sketch11.AttachmentOffset = App.Placement(Vector(0, 0, -23.563494), App.Rotation())
add_polygon(sketch11, [(81, -39), (81, -44), (63, -44), (63, -39)])
add_polygon(sketch11, [(42, -3), (42, -17), (37, -17), (37, -3)])
add_polygon(sketch11, [(42, -66), (42, -87), (37, -87), (37, -66)])
add_polygon(sketch11, [(15, -39), (15, -44), (-4, -44), (-4, -39)])
add_polygon(sketch11, [(14, -109), (14, -114), (-3, -114), (-3, -109)])
add_polygon(sketch11, [(42, -136), (42, -149), (37, -149), (37, -136)])
add_polygon(sketch11, [(81, -109), (81, -114), (66, -114), (66, -109)])
sketch11.addConstraint(Sketcher.Constraint("Vertical", 0))
sketch11.addConstraint(Sketcher.Constraint("Horizontal", 1))
sketch11.addConstraint(Sketcher.Constraint("Vertical", 2))
sketch11.addConstraint(Sketcher.Constraint("Horizontal", 3))
sketch11.addConstraint(Sketcher.Constraint("Vertical", 4))
sketch11.addConstraint(Sketcher.Constraint("Horizontal", 5))
sketch11.addConstraint(Sketcher.Constraint("Vertical", 6))
sketch11.addConstraint(Sketcher.Constraint("Horizontal", 7))
sketch11.addConstraint(Sketcher.Constraint("Vertical", 8))
sketch11.addConstraint(Sketcher.Constraint("Horizontal", 9))
sketch11.addConstraint(Sketcher.Constraint("Vertical", 10))
sketch11.addConstraint(Sketcher.Constraint("Horizontal", 11))
sketch11.addConstraint(Sketcher.Constraint("Vertical", 12))
sketch11.addConstraint(Sketcher.Constraint("Horizontal", 13))
sketch11.addConstraint(Sketcher.Constraint("Vertical", 14))
sketch11.addConstraint(Sketcher.Constraint("Horizontal", 15))
sketch11.addConstraint(Sketcher.Constraint("Vertical", 16))
sketch11.addConstraint(Sketcher.Constraint("Horizontal", 17))
sketch11.addConstraint(Sketcher.Constraint("Vertical", 18))
sketch11.addConstraint(Sketcher.Constraint("Horizontal", 19))
sketch11.addConstraint(Sketcher.Constraint("Vertical", 20))
sketch11.addConstraint(Sketcher.Constraint("Horizontal", 21))
sketch11.addConstraint(Sketcher.Constraint("Vertical", 22))
sketch11.addConstraint(Sketcher.Constraint("Horizontal", 23))
sketch11.addConstraint(Sketcher.Constraint("Vertical", 24))
sketch11.addConstraint(Sketcher.Constraint("Horizontal", 25))
sketch11.addConstraint(Sketcher.Constraint("Vertical", 26))
sketch11.addConstraint(Sketcher.Constraint("Horizontal", 27))
sketch11.addConstraint(Sketcher.Constraint("Horizontal", 1, 2, 12, 2))
sketch11.addConstraint(Sketcher.Constraint("Horizontal", 3, 2, 14, 2))
sketch11.addConstraint(Sketcher.Constraint("Horizontal", 17, 2, 24, 2))
sketch11.addConstraint(Sketcher.Constraint("Horizontal", 19, 2, 26, 2))
sketch11.addConstraint(Sketcher.Constraint("Vertical", 7, 2, 8, 2))
sketch11.addConstraint(Sketcher.Constraint("Vertical", 6, 2, 9, 2))
sketch11.addConstraint(Sketcher.Constraint("Vertical", 11, 2, 20, 2))
sketch11.addConstraint(Sketcher.Constraint("Vertical", 10, 2, 21, 2))
sketch11.addConstraint(Sketcher.Constraint("Vertical", 3, 2, 24, 2))
sketch11.addConstraint(Sketcher.Constraint("Equal", 23, 0))
sketch11.addConstraint(Sketcher.Constraint("Equal", 14, 16))
sketch11.addConstraint(Sketcher.Constraint("DistanceX", 1, 2, 1, 1, Q("0.7 in")))
sketch11.addConstraint(Sketcher.Constraint("DistanceX", 5, 2, 5, 1, Q("0.2 in")))
sketch11.addConstraint(Sketcher.Constraint("DistanceX", 25, 2, 25, 1, Q("0.6 in")))
sketch11.addConstraint(Sketcher.Constraint("DistanceY", 8, 2, 8, 1, Q("0.8 in")))
sketch11.addConstraint(Sketcher.Constraint("DistanceX", 13, 2, 13, 1, Q("0.75 in")))
sketch11.addConstraint(Sketcher.Constraint("DistanceX", 17, 2, 17, 1, Q("0.65 in")))
sketch11.addConstraint(Sketcher.Constraint("DistanceY", 4, 2, 4, 1, Q("0.55 in")))
sketch11.addConstraint(Sketcher.Constraint("DistanceY", 8, 2, 4, 2, Q("2.75 in")))
sketch11.addConstraint(Sketcher.Constraint("DistanceY", 16, 2, 12, 2, Q("2.75 in")))
sketch11.addConstraint(Sketcher.Constraint("DistanceY", 0, 2, -1, 1, Q("1.725 in")))
sketch11.addConstraint(Sketcher.Constraint("DistanceY", 1, 2, 4, 2, Q("1.0625 in")))
sketch11.addConstraint(Sketcher.Constraint("DistanceX", 12, 2, 11, 2, Q("1.0625 in")))
sketch11.addConstraint(Sketcher.Constraint("DistanceY", 20, 2, 20, 1, Q("12.685889 mm")))
sketch11.addConstraint(Sketcher.Constraint("DistanceX", -1, 1, 4, 2, Q("41.672231 mm")))
sketch11.addConstraint(Sketcher.Constraint("DistanceX", 4, 2, 2, 2, Q("21.298542 mm")))
sketch11.addConstraint(Sketcher.Constraint("DistanceX", 16, 2, 9, 2, Q("22.999608 mm")))
sketch11.addConstraint(Sketcher.Constraint("DistanceY", 20, 2, -1, 1, Q("148.609337 mm")))
pad9 = doc.addObject("PartDesign::Pad", "Pad008")
body.addObject(pad9)
pad9.Profile = sketch11
pad9.Length = 23.563494
doc.recompute()

fillet = doc.addObject("PartDesign::Fillet", "Fillet")
body.addObject(fillet)
fillet.Base = (pad9, edges_at(pad9, [
    (36.592, 11.782, -6.35),
    (41.672, 11.782, -6.35),
    (36.592, 11.782, -14.407),
    (41.672, 11.782, -14.407),
    (36.592, 11.782, -68.143),
    (36.592, 11.782, -84.257),
    (41.672, 11.782, -84.257),
    (41.672, 11.782, -137.993),
    (36.592, 11.782, -137.993),
    (12.265, 11.782, -108.585),
    (12.265, 11.782, -113.665),
    (66, 11.782, -113.665),
    (66, 11.782, -108.585),
    (80.751, 11.782, -113.665),
    (80.751, 11.782, -108.585),
    (12.265, 11.782, -38.735),
    (12.265, 11.782, -43.815),
    (66, 11.782, -43.815),
    (80.751, 11.782, -43.815),
    (66, 11.782, -38.735),
    (80.751, 11.782, -38.735),
]))
fillet.Radius = Q("0.13 in")

doc.recompute()
